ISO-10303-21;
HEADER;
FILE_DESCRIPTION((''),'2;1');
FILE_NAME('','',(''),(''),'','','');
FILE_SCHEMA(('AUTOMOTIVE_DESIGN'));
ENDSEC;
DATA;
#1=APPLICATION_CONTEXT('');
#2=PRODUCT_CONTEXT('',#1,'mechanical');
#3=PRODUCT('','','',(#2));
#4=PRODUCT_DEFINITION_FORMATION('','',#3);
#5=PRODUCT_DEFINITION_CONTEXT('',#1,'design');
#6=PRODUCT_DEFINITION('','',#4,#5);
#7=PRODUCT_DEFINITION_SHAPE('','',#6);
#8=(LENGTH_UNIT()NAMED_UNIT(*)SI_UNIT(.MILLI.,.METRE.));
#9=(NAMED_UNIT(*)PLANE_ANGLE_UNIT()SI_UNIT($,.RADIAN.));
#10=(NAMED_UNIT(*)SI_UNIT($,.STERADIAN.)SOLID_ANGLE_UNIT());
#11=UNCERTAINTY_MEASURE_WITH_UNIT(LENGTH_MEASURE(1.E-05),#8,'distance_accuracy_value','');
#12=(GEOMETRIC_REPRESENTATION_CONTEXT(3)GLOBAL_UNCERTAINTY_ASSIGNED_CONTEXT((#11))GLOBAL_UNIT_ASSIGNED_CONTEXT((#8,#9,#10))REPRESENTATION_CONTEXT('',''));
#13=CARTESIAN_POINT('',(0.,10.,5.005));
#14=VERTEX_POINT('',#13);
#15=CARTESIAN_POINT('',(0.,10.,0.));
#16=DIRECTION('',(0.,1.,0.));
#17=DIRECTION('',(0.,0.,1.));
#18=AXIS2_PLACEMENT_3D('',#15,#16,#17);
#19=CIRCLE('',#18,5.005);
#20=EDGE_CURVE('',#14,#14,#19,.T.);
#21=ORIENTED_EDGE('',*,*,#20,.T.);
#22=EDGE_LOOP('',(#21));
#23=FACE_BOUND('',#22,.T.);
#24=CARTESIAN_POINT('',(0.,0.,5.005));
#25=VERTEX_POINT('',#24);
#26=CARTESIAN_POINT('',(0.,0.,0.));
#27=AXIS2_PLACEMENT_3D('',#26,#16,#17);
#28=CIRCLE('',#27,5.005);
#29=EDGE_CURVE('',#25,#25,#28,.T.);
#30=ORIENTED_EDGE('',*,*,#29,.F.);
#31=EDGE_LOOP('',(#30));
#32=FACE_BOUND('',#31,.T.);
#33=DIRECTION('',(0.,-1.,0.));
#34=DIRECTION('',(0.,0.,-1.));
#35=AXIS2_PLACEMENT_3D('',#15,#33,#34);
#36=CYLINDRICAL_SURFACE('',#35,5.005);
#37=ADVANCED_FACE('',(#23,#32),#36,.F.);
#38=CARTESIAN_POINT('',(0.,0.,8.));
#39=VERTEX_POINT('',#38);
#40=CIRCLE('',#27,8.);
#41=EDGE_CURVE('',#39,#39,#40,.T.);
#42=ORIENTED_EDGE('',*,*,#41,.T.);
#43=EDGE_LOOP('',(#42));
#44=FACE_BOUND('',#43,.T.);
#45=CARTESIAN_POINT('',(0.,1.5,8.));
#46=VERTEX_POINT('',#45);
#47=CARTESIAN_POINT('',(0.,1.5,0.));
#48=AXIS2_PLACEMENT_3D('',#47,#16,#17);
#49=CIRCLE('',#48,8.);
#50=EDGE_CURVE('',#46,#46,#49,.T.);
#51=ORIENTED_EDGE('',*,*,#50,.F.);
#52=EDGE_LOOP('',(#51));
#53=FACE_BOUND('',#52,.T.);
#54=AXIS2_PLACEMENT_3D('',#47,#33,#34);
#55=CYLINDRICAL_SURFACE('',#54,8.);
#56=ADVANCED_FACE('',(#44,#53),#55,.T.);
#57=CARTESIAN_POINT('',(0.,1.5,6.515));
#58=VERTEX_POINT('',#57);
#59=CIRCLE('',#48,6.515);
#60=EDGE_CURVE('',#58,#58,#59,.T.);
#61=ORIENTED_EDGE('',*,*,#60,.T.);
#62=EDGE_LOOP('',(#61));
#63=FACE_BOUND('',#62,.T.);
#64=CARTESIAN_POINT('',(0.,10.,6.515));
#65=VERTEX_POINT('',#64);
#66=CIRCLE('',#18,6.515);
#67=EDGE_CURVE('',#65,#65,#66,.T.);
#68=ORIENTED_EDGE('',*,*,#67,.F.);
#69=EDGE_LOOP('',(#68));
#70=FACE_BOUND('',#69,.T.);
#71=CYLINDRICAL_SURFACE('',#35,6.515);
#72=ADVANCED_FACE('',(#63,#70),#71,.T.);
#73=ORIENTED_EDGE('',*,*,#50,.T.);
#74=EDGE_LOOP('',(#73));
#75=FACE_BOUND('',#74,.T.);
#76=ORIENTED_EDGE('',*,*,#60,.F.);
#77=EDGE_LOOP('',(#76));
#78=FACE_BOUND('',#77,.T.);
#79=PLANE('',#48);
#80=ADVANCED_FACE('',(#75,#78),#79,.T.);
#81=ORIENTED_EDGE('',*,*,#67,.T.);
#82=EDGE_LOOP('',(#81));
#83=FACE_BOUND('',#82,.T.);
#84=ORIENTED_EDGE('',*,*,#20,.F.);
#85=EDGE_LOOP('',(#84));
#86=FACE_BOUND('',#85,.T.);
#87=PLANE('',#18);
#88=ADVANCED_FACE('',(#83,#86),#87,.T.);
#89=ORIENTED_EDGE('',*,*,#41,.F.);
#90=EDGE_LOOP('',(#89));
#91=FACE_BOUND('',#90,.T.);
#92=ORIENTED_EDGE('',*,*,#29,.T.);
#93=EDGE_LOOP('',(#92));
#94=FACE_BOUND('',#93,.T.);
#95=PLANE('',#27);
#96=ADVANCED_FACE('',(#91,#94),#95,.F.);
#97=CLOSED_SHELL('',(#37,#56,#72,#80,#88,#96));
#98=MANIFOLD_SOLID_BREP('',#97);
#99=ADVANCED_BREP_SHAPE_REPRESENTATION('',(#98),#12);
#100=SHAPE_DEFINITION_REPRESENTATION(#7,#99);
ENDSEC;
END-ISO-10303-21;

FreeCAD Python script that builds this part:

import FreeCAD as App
import Part
import Sketcher
Q = App.Units.Quantity

doc = App.newDocument("Part")
body = doc.addObject("PartDesign::Body", "Body")

# Sketch on XZ plane
sketch1 = body.newObject("Sketcher::SketchObject", "Sketch")
sketch1.AttachmentSupport = (doc.getObject("XZ_Plane"), [""])
sketch1.MapMode = "FlatFace"
sketch1.addGeometry(Part.Circle(App.Vector(0, 0, 0), App.Vector(0, 0, 1), 6.515), False)
sketch1.addGeometry(Part.Circle(App.Vector(0, 0, 0), App.Vector(0, 0, 1), 5.005), False)
sketch1.addConstraint(Sketcher.Constraint("Coincident", 0, 3, -1, 1))
sketch1.addConstraint(Sketcher.Constraint("Coincident", 1, 3, -1, 1))
sketch1.addConstraint(Sketcher.Constraint("Diameter", 0, Q("13.03 mm")))
sketch1.addConstraint(Sketcher.Constraint("Diameter", 1, Q("10.01 mm")))
pad1 = body.newObject("PartDesign::Pad", "Pad")
pad1.Profile = sketch1
pad1.Length = 10
pad1.Reversed = True

# Sketch on XZ plane
sketch2 = body.newObject("Sketcher::SketchObject", "Sketch001")
sketch2.AttachmentSupport = (doc.getObject("XZ_Plane"), [""])
sketch2.MapMode = "FlatFace"
sketch2.addGeometry(Part.Circle(App.Vector(0, 0, 0), App.Vector(0, 0, 1), 8), False)
sketch2.addGeometry(Part.Circle(App.Vector(0, 0, 0), App.Vector(0, 0, 1), 6.515), False)
sketch2.addConstraint(Sketcher.Constraint("Coincident", 0, 3, -1, 1))
sketch2.addConstraint(Sketcher.Constraint("Coincident", 1, 3, -1, 1))
sketch2.addConstraint(Sketcher.Constraint("Diameter", 0, Q("16 mm")))
sketch2.addConstraint(Sketcher.Constraint("Diameter", 1, Q("13.03 mm")))
pad2 = body.newObject("PartDesign::Pad", "Pad001")
pad2.Profile = sketch2
pad2.Length = 1.5
pad2.Reversed = True

doc.recompute()
